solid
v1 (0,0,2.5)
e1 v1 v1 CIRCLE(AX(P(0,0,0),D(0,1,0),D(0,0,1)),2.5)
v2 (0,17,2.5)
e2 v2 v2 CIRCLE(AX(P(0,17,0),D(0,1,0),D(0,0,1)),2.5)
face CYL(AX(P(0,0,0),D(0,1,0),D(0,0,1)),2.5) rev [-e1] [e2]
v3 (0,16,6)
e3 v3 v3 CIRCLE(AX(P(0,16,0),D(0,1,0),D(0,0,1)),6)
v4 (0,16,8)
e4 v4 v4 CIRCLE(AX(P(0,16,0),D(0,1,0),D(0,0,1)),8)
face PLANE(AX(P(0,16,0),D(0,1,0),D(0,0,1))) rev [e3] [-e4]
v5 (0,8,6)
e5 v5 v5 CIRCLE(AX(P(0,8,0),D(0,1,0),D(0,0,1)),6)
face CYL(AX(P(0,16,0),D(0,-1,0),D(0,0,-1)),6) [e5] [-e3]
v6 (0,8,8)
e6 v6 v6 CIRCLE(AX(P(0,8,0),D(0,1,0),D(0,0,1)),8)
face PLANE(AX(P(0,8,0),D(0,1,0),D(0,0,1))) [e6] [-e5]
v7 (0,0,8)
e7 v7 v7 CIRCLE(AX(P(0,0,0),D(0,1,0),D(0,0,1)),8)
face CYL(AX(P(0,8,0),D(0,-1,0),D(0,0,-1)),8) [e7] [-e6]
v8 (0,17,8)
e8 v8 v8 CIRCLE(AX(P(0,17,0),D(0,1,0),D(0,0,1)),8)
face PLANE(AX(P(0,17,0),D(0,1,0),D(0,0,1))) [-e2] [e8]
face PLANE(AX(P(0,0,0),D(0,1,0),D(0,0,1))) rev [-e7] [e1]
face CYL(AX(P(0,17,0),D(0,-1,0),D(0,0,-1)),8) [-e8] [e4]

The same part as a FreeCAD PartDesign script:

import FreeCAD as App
import Part
import Sketcher
from FreeCAD import Vector

doc = App.newDocument("Part")
body = doc.addObject("PartDesign::Body", "Body")

# Sketch on XZ plane
sketch1 = body.newObject("Sketcher::SketchObject", "Sketch")
sketch1.AttachmentSupport = (doc.getObject("XZ_Plane"), [""])
sketch1.MapMode = "FlatFace"
sketch1.addGeometry(Part.Circle(Vector(0, 0, 0), Vector(0, 0, 1), 8), False)
sketch1.addConstraint([
    Sketcher.Constraint("Coincident", 0, 3, -1, 1),
    Sketcher.Constraint("Diameter", 0, 16.0),
])
pad1 = body.newObject("PartDesign::Pad", "Pad")
pad1.Profile = sketch1
pad1.Length = 8
pad1.Reversed = True

# Sketch on XZ plane
sketch2 = body.newObject("Sketcher::SketchObject", "Sketch001")
sketch2.AttachmentSupport = (doc.getObject("XZ_Plane"), [""])
sketch2.MapMode = "FlatFace"
sketch2.AttachmentOffset = App.Placement(Vector(0, 0, -8), App.Rotation())
sketch2.addGeometry(Part.Circle(Vector(0, 0, 0), Vector(0, 0, 1), 6), False)
sketch2.addConstraint([
    Sketcher.Constraint("Coincident", 0, 3, -1, 1),
    Sketcher.Constraint("Diameter", 0, 12.0),
])
pad2 = body.newObject("PartDesign::Pad", "Pad001")
pad2.Profile = sketch2
pad2.Length = 8
pad2.Reversed = True

# Sketch on XZ plane
sketch3 = body.newObject("Sketcher::SketchObject", "Sketch002")
sketch3.AttachmentSupport = (doc.getObject("XZ_Plane"), [""])
sketch3.MapMode = "FlatFace"
sketch3.AttachmentOffset = App.Placement(Vector(0, 0, -16), App.Rotation())
sketch3.addGeometry(Part.Circle(Vector(0, 0, 0), Vector(0, 0, 1), 8), False)
sketch3.addConstraint([
    Sketcher.Constraint("Coincident", 0, 3, -1, 1),
    Sketcher.Constraint("Diameter", 0, 16.0),
])
pad3 = body.newObject("PartDesign::Pad", "Pad002")
pad3.Profile = sketch3
pad3.Length = 1
pad3.Reversed = True

# Sketch on XZ plane
sketch4 = body.newObject("Sketcher::SketchObject", "Sketch003")
sketch4.AttachmentSupport = (doc.getObject("XZ_Plane"), [""])
sketch4.MapMode = "FlatFace"
sketch4.AttachmentOffset = App.Placement(Vector(0, 0, -17), App.Rotation())
sketch4.addGeometry(Part.Circle(Vector(0, 0, 0), Vector(0, 0, 1), 2.5), False)
sketch4.addConstraint([
    Sketcher.Constraint("Coincident", 0, 3, -1, 1),
    Sketcher.Constraint("Diameter", 0, 5.0),
])
pocket1 = body.newObject("PartDesign::Pocket", "Pocket")
pocket1.Profile = sketch4
pocket1.Type = "ThroughAll"
pocket1.Reversed = True

doc.recompute()
